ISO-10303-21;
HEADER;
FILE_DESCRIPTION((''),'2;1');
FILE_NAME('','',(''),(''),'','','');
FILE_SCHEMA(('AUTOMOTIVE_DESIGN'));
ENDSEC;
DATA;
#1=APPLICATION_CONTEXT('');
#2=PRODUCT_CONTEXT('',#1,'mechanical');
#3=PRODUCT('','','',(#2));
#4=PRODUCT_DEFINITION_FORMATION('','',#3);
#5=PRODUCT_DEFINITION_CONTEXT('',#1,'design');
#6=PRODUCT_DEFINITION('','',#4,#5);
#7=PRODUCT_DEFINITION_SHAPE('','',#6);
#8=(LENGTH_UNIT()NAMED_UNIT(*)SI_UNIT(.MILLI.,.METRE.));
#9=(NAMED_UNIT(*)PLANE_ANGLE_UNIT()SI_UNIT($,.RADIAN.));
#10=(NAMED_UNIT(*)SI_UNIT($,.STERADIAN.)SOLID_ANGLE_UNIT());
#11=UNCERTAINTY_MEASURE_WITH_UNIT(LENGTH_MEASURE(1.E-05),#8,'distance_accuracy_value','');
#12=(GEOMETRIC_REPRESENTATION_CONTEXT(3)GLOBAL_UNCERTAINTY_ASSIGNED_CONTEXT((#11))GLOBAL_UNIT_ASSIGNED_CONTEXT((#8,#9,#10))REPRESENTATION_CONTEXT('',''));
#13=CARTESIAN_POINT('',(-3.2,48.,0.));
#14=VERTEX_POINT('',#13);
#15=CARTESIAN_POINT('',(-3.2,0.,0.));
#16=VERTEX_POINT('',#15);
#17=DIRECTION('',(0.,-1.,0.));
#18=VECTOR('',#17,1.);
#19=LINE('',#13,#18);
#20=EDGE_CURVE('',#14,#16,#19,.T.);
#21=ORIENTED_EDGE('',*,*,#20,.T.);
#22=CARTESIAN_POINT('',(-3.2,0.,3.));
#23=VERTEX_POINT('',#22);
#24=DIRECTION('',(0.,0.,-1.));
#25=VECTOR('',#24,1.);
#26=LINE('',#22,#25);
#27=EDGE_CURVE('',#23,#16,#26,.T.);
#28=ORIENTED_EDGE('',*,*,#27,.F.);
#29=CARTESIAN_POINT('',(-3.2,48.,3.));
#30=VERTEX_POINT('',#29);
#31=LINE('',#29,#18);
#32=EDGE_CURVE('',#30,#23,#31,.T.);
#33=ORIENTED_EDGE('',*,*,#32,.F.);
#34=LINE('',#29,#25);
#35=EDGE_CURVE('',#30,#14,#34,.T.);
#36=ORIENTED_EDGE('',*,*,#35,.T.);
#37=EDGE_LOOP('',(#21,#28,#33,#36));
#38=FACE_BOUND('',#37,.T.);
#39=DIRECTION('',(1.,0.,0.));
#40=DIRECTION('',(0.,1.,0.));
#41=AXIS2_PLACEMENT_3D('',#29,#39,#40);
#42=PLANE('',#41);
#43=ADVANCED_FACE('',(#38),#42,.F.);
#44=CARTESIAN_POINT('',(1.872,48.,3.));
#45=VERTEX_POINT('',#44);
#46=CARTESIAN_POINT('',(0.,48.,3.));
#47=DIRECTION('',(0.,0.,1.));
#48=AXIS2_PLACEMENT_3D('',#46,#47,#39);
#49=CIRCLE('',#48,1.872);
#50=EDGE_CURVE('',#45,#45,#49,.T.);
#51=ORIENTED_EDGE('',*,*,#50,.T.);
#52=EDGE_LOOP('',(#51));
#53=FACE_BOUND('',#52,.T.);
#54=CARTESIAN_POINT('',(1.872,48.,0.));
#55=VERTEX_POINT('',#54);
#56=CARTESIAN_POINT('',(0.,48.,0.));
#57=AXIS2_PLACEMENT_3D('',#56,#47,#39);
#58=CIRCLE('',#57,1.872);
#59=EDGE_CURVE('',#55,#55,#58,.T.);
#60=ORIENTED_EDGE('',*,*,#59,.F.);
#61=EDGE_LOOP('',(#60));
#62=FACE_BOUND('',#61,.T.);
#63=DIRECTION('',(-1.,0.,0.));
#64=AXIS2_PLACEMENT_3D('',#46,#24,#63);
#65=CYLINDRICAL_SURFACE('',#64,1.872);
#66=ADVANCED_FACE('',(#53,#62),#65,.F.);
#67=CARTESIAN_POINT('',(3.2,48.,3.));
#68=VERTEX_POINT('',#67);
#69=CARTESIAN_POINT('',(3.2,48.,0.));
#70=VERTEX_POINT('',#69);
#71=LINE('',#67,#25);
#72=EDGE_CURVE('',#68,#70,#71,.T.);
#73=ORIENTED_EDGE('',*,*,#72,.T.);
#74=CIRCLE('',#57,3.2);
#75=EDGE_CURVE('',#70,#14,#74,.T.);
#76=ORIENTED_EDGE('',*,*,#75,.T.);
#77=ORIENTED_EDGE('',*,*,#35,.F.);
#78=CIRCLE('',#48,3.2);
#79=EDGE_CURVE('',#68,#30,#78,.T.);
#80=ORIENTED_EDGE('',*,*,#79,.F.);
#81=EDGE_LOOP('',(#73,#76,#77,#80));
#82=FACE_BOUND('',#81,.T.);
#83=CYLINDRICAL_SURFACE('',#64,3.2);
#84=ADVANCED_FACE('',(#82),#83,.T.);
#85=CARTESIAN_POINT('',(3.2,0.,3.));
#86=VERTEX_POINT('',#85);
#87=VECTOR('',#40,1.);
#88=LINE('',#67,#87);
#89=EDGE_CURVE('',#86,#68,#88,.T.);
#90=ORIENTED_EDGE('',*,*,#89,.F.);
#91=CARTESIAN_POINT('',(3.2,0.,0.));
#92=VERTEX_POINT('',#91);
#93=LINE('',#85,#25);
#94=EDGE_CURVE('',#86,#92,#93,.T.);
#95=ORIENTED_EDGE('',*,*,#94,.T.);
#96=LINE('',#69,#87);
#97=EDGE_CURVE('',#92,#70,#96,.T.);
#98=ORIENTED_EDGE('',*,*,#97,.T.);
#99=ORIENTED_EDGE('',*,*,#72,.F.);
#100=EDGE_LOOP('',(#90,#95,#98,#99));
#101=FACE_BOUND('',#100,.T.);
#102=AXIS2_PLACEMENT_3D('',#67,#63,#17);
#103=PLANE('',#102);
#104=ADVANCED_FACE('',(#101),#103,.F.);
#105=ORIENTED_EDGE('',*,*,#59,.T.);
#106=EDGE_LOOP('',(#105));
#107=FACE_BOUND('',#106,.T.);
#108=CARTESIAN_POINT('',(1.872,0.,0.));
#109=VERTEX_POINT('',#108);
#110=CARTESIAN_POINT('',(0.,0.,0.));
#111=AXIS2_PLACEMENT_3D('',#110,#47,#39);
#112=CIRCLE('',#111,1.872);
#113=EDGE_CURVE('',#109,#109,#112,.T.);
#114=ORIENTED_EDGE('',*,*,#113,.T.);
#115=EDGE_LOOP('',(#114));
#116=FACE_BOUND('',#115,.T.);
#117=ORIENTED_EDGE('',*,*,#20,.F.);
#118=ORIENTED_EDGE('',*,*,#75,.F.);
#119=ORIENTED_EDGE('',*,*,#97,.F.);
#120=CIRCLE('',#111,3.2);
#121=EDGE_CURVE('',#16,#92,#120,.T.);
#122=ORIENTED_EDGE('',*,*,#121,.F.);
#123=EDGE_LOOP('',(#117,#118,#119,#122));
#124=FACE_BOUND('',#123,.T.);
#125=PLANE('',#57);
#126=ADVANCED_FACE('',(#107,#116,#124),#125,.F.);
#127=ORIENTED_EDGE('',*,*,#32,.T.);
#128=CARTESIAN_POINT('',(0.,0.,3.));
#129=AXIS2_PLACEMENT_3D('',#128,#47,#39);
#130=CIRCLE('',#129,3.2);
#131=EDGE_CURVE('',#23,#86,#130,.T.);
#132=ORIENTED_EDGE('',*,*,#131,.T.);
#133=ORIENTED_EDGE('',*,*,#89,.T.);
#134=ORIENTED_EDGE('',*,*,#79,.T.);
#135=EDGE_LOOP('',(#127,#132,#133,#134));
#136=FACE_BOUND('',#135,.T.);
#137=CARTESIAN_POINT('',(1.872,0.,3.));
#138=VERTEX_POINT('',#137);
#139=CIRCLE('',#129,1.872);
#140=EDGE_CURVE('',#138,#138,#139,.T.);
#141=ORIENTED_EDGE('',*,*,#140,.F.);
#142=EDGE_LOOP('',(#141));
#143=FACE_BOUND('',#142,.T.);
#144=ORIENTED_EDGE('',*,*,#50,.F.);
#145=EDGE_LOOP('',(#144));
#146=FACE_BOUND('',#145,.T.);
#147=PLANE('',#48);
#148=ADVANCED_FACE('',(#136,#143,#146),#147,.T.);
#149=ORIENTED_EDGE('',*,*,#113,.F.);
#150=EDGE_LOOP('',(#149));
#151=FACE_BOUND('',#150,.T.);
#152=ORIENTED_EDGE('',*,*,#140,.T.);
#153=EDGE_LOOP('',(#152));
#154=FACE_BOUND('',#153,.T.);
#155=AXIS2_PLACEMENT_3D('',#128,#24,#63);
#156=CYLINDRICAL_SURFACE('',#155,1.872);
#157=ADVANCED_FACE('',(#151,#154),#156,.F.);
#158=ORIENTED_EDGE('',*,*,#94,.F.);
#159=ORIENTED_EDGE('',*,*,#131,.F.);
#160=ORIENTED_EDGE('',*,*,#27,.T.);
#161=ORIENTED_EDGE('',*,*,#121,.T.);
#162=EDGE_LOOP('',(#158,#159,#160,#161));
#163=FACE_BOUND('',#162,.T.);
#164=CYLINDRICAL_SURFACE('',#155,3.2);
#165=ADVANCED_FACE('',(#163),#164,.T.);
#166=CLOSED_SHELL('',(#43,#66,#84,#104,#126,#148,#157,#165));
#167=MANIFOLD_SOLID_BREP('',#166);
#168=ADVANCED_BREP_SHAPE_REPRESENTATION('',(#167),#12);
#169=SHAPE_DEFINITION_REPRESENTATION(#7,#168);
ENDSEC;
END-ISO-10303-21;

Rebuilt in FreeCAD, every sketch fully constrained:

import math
import FreeCAD as App
import Part
import Sketcher

V = App.Vector

doc = App.newDocument("Part")
body = doc.addObject("PartDesign::Body", "Body")

sketch1 = body.newObject("Sketcher::SketchObject", "Sketch")
sketch1.AttachmentSupport = (doc.getObject("XY_Plane"), [""])
sketch1.MapMode = "FlatFace"
sketch1.addGeometry([
    Part.LineSegment(V(-3.2, 48, 0), V(-3.2, 0, 0)),
    Part.ArcOfCircle(Part.Circle(V(0, 0, 0), V(0, 0, 1), 3.2), math.radians(180), math.radians(360)),
    Part.LineSegment(V(3.2, 0, 0), V(3.2, 48, 0)),
    Part.ArcOfCircle(Part.Circle(V(0, 48, 0), V(0, 0, 1), 3.2), math.radians(0), math.radians(180)),
    Part.Circle(V(0, 0, 0), V(0, 0, 1), 1.9),
    Part.Circle(V(0, 48, 0), V(0, 0, 1), 1.9),
], False)
sketch1.addConstraint([
    Sketcher.Constraint("Tangent", 0, 2, 1, 1),
    Sketcher.Constraint("Tangent", 1, 2, 2, 1),
    Sketcher.Constraint("Tangent", 2, 2, 3, 1),
    Sketcher.Constraint("Tangent", 3, 2, 0, 1),
    Sketcher.Constraint("Vertical", 0),
    Sketcher.Constraint("Vertical", 2),
    Sketcher.Constraint("Coincident", 1, 3, -1, 1),
    Sketcher.Constraint("Coincident", 4, 3, -1, 1),
    Sketcher.Constraint("Coincident", 5, 3, 3, 3),
    Sketcher.Constraint("Equal", 4, 5),
    Sketcher.Constraint("Radius", 1, 3.2),
    Sketcher.Constraint("DistanceY", 0, 2, 0, 1, 48.0),
    Sketcher.Constraint("Diameter", 4, 3.744),
])
pad1 = body.newObject("PartDesign::Pad", "Pad")
pad1.Profile = sketch1
pad1.Length = 3

doc.recompute()
